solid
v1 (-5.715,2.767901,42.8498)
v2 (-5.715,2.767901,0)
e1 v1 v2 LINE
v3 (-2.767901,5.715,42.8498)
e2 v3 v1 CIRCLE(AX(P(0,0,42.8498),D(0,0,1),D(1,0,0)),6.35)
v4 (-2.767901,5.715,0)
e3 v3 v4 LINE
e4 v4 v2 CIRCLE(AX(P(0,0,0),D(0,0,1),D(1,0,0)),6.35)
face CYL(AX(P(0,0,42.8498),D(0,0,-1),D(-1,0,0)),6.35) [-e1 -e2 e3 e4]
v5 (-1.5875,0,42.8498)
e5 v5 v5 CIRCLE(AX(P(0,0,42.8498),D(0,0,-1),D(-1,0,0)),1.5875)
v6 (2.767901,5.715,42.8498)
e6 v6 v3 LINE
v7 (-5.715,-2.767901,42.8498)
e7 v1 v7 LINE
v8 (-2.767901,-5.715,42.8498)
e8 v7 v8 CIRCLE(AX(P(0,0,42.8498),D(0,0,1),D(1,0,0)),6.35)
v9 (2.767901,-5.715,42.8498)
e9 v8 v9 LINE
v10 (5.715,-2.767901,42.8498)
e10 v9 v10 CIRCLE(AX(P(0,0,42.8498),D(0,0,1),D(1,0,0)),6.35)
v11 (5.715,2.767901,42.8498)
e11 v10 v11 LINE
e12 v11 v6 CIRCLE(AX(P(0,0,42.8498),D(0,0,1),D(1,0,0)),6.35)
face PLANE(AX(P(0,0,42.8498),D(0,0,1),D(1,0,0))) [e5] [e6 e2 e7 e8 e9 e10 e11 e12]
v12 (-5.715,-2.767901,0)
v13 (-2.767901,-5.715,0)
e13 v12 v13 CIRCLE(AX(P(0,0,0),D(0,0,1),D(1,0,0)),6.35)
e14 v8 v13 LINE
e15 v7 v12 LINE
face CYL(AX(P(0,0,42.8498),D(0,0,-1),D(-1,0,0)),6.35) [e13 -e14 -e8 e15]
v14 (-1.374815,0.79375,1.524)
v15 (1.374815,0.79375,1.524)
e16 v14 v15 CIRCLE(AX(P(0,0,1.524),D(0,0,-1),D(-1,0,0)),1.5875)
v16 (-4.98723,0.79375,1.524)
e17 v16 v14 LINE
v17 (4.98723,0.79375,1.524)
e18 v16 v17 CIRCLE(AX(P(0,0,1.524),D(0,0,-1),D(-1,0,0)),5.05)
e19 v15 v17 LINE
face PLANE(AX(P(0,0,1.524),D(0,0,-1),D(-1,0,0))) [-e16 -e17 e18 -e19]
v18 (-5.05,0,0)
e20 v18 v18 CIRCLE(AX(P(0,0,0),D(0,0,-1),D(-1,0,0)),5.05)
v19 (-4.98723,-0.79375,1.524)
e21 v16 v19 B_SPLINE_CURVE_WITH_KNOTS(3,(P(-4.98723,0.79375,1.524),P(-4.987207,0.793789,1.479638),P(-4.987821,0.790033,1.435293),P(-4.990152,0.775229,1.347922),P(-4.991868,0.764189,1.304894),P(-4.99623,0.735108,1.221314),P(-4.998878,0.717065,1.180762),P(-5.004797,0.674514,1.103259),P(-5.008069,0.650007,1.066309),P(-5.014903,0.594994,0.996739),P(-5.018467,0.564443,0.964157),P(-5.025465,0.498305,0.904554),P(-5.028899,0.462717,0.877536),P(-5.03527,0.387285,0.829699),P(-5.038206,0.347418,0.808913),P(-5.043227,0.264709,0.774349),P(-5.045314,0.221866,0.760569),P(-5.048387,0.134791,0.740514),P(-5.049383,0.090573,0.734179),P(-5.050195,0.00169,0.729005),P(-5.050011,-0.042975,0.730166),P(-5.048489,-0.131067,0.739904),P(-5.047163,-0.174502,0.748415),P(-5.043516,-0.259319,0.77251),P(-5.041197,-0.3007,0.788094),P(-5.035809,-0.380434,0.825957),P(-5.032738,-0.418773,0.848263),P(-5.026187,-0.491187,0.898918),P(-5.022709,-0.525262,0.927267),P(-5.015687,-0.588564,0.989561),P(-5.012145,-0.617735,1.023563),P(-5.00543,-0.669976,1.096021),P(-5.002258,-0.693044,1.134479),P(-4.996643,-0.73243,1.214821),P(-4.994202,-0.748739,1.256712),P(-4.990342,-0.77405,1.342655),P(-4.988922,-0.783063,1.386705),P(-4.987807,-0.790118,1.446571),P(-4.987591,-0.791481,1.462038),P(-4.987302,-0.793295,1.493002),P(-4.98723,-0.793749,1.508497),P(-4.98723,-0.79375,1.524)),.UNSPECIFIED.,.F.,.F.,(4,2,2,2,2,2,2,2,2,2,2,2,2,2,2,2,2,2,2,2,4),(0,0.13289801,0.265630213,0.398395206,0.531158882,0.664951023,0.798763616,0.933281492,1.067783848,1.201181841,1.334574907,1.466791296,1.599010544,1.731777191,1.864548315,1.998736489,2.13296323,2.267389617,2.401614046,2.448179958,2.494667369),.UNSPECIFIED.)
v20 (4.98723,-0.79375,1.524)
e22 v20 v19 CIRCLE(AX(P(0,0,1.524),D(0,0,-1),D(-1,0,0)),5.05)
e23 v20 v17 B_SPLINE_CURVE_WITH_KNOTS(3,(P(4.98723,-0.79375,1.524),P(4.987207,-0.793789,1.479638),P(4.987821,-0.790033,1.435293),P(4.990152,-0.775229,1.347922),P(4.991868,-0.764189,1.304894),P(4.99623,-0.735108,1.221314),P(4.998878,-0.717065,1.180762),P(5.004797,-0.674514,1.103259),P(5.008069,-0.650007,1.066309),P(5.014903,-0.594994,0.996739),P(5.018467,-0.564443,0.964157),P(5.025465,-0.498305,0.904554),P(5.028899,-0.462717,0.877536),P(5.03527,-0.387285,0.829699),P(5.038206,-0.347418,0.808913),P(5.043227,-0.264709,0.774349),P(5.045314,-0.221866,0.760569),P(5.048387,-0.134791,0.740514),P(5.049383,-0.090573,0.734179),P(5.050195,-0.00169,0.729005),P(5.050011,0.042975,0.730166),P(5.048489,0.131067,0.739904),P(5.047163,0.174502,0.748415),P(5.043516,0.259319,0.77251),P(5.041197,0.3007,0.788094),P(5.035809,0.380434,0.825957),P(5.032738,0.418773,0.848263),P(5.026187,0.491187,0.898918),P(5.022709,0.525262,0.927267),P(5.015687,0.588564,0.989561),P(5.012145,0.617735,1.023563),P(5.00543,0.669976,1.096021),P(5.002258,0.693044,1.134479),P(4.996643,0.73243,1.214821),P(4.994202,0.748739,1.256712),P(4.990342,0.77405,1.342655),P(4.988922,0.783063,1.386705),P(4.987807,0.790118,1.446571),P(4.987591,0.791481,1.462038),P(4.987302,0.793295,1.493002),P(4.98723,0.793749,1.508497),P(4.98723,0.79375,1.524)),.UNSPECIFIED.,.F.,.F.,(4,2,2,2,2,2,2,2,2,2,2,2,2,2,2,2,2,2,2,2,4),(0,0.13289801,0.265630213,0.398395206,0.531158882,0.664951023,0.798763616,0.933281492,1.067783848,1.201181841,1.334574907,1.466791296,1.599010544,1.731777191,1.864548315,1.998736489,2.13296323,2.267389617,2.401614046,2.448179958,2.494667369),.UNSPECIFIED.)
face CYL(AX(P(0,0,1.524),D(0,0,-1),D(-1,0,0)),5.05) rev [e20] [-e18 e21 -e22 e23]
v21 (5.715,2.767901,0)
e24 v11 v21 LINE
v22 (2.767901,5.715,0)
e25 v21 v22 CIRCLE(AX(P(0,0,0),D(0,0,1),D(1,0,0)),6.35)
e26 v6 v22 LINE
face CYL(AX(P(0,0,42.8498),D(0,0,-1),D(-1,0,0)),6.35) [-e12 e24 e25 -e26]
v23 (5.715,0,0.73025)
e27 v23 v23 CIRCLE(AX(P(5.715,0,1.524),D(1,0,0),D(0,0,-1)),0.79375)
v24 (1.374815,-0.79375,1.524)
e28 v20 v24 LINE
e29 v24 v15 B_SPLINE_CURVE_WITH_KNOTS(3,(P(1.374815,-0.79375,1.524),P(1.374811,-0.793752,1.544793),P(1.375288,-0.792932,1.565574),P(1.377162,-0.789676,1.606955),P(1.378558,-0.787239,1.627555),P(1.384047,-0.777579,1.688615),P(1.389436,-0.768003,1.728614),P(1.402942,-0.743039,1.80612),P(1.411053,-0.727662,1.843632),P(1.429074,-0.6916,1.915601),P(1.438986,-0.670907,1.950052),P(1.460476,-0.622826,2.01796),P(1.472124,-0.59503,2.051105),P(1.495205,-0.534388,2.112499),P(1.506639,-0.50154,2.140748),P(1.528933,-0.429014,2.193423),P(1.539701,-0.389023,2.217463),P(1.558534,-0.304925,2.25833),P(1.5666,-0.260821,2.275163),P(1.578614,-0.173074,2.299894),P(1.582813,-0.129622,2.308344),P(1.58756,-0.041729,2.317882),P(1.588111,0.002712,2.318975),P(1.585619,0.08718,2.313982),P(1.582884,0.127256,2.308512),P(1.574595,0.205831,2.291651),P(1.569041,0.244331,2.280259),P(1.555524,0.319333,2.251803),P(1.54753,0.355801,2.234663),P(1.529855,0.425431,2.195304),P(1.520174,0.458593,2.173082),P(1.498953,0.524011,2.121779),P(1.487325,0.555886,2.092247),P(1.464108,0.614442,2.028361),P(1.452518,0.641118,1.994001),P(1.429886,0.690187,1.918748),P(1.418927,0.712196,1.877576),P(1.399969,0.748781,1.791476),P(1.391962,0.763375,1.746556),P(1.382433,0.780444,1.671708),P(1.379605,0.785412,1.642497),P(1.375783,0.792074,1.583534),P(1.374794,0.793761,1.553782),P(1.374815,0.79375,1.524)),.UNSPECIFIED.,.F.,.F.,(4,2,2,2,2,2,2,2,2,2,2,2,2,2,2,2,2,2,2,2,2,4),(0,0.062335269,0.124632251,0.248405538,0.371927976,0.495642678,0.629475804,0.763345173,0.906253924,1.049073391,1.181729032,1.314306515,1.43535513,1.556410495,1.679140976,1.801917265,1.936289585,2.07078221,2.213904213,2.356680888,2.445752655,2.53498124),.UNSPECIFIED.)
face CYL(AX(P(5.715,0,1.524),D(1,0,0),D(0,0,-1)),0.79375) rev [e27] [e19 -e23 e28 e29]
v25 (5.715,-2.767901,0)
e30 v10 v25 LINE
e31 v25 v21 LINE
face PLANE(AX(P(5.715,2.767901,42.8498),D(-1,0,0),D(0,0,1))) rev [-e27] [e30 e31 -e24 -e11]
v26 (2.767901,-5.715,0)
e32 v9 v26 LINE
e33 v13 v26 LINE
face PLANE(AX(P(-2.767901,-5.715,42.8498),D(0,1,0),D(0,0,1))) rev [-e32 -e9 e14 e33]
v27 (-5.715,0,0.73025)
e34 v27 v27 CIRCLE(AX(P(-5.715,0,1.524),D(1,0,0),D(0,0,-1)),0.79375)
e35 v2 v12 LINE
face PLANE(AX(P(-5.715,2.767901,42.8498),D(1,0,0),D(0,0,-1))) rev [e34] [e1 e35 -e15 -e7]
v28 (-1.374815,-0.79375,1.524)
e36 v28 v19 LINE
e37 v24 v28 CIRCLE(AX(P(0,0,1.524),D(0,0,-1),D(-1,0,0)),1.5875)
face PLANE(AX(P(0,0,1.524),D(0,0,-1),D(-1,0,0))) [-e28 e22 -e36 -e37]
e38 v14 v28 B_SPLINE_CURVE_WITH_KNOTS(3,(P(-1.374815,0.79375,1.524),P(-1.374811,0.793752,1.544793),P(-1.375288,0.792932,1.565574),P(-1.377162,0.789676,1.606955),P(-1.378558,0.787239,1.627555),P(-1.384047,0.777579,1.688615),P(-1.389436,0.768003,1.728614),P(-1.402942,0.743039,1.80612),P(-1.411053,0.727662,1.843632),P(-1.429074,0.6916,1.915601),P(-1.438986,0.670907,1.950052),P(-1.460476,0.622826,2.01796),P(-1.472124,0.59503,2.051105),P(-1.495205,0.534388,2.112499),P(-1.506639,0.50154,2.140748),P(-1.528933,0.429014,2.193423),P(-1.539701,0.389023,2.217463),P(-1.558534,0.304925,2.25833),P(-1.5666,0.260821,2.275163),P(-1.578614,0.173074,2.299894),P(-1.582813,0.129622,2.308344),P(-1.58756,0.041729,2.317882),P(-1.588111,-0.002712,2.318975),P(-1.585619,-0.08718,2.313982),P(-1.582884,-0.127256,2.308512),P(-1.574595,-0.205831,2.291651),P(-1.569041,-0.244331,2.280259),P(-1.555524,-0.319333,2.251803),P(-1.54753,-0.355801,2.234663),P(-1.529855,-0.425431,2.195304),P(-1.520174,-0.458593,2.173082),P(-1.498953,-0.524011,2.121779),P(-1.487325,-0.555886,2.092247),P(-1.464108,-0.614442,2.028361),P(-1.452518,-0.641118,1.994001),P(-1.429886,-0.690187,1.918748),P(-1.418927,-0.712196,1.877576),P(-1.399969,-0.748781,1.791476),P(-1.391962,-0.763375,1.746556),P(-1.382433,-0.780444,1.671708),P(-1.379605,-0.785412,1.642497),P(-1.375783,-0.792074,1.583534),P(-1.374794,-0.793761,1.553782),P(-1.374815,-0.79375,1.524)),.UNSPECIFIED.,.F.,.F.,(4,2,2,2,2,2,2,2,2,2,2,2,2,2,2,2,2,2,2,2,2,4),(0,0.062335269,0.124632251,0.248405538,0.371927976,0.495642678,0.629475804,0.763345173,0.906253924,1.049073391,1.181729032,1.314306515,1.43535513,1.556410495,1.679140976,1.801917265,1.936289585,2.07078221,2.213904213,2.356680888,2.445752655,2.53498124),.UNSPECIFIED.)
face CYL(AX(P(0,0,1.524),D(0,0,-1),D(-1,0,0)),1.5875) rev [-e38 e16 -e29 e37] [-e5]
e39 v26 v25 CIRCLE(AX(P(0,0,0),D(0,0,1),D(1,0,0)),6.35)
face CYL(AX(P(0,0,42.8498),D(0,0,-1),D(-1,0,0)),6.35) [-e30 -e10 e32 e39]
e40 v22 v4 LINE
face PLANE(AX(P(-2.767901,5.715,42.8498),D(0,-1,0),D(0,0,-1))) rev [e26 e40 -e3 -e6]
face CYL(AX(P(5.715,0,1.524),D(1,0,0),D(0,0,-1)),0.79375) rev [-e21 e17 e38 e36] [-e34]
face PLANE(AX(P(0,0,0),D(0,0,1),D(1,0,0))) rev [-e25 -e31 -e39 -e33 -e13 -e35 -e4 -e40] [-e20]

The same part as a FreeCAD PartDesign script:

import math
import FreeCAD as App
import Part
import Sketcher
from FreeCAD import Vector
Q = App.Units.Quantity

doc = App.newDocument("Part")
body = doc.addObject("PartDesign::Body", "Body")

sketch1 = body.newObject("Sketcher::SketchObject", "Sketch")
sketch1.AttachmentSupport = (doc.getObject("XY_Plane"), [""])
sketch1.MapMode = "FlatFace"
sketch1.addGeometry([
    Part.LineSegment(Vector(2.8, 5.7, 0), Vector(-2.8, 5.7, 0)),
    Part.ArcOfCircle(Part.Circle(Vector(0, 0, 0), Vector(0, 0, 1), 6.3), math.radians(116), math.radians(154)),
    Part.LineSegment(Vector(-5.7, 2.8, 0), Vector(-5.7, -2.8, 0)),
    Part.ArcOfCircle(Part.Circle(Vector(0, 0, 0), Vector(0, 0, 1), 6.3), math.radians(-154), math.radians(-116)),
    Part.LineSegment(Vector(-2.8, -5.7, 0), Vector(2.8, -5.7, 0)),
    Part.ArcOfCircle(Part.Circle(Vector(0, 0, 0), Vector(0, 0, 1), 6.3), math.radians(-64), math.radians(-26)),
    Part.LineSegment(Vector(5.7, -2.8, 0), Vector(5.7, 2.8, 0)),
    Part.ArcOfCircle(Part.Circle(Vector(0, 0, 0), Vector(0, 0, 1), 6.3), math.radians(26), math.radians(64)),
], False)
sketch1.addConstraint([
    Sketcher.Constraint("Coincident", 0, 2, 1, 1),
    Sketcher.Constraint("Coincident", 1, 2, 2, 1),
    Sketcher.Constraint("Coincident", 2, 2, 3, 1),
    Sketcher.Constraint("Coincident", 3, 2, 4, 1),
    Sketcher.Constraint("Coincident", 4, 2, 5, 1),
    Sketcher.Constraint("Coincident", 5, 2, 6, 1),
    Sketcher.Constraint("Coincident", 6, 2, 7, 1),
    Sketcher.Constraint("Coincident", 7, 2, 0, 1),
    Sketcher.Constraint("Horizontal", 0),
    Sketcher.Constraint("Vertical", 2),
    Sketcher.Constraint("Horizontal", 4),
    Sketcher.Constraint("Vertical", 6),
    Sketcher.Constraint("Coincident", 1, 3, -1, 1),
    Sketcher.Constraint("Coincident", 3, 3, -1, 1),
    Sketcher.Constraint("Coincident", 5, 3, -1, 1),
    Sketcher.Constraint("Coincident", 7, 3, -1, 1),
    Sketcher.Constraint("Equal", 1, 3),
    Sketcher.Constraint("Equal", 3, 5),
    Sketcher.Constraint("Equal", 5, 7),
    Sketcher.Constraint("Horizontal", 2, 2, 5, 2),
    Sketcher.Constraint("Vertical", 0, 2, 3, 2),
    Sketcher.Constraint("Equal", 4, 2),
    Sketcher.Constraint("Radius", 1, Q("0.25 in")),
    Sketcher.Constraint("DistanceY", -1, 1, 0, 2, Q("0.225 in")),
])
pad1 = body.newObject("PartDesign::Pad", "Pad")
pad1.Profile = sketch1
pad1.Length = Q("1.687 in")

sketch2 = body.newObject("Sketcher::SketchObject", "Sketch001")
sketch2.AttachmentSupport = (doc.getObject("XY_Plane"), [""])
sketch2.MapMode = "FlatFace"
sketch2.addGeometry(Part.Circle(Vector(0, 0, 0), Vector(0, 0, 1), 5), False)
sketch2.addConstraint([
    Sketcher.Constraint("Coincident", 0, 3, -1, 1),
    Sketcher.Constraint("Diameter", 0, 10.1),
])
pocket1 = body.newObject("PartDesign::Pocket", "Pocket")
pocket1.Profile = sketch2
pocket1.Length = Q("0.06 in")
pocket1.Reversed = True

sketch3 = body.newObject("Sketcher::SketchObject", "Sketch002")
sketch3.AttachmentSupport = (doc.getObject("YZ_Plane"), [""])
sketch3.MapMode = "FlatFace"
sketch3.AttachmentOffset = App.Placement(Vector(0, 0, 0.225 * 25.4), App.Rotation())
sketch3.addGeometry(Part.Circle(Vector(0, 1.5, 0), Vector(0, 0, 1), 0.8), False)
sketch3.addConstraint([
    Sketcher.Constraint("PointOnObject", 0, 3, -2),
    Sketcher.Constraint("Diameter", 0, Q("0.0625 in")),
    Sketcher.Constraint("DistanceY", -1, 1, 0, 3, Q("0.06 in")),
])
doc.recompute()
hole = body.newObject("PartDesign::Hole", "Hole")
hole.Profile = sketch3
hole.ThreadType = "None"
hole.Diameter = Q("0.0625 in")
hole.DepthType = "ThroughAll"

sketch4 = body.newObject("Sketcher::SketchObject", "Sketch003")
sketch4.AttachmentSupport = (doc.getObject("XY_Plane"), [""])
sketch4.MapMode = "FlatFace"
sketch4.AttachmentOffset = App.Placement(Vector(0, 0, 0.06 * 25.4), App.Rotation())
sketch4.addGeometry(Part.Circle(Vector(0, 0, 0), Vector(0, 0, 1), 1.6), False)
sketch4.addConstraint([
    Sketcher.Constraint("Coincident", 0, 3, -1, 1),
    Sketcher.Constraint("Diameter", 0, Q("0.125 in")),
])
doc.recompute()
hole2 = body.newObject("PartDesign::Hole", "Hole001")
hole2.Profile = sketch4
hole2.ThreadType = "None"
hole2.Diameter = Q("0.125 in")
hole2.DepthType = "ThroughAll"
hole2.Reversed = True

doc.recompute()
